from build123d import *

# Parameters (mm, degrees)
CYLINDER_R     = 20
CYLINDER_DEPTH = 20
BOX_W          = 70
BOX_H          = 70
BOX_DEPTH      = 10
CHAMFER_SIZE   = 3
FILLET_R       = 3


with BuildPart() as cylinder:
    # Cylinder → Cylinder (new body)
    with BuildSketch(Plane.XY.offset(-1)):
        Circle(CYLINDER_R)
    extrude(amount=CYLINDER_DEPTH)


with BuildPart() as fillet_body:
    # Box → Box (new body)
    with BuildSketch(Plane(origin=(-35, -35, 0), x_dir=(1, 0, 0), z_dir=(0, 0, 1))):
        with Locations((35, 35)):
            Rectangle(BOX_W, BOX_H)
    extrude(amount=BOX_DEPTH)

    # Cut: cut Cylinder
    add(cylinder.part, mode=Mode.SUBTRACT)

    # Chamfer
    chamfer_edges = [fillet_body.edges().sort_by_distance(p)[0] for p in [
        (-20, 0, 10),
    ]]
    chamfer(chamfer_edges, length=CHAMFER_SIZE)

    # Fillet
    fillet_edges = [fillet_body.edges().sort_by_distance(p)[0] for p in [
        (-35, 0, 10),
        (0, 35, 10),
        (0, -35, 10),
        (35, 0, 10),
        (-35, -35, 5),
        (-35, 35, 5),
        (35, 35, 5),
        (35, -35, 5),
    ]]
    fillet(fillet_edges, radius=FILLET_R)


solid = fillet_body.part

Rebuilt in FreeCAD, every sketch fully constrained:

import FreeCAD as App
import Part
import Sketcher

V = App.Vector
Q = App.Units.Quantity


def edges_at(feature, points):
    """Names of the edges that pass closest to the given points."""
    edges = feature.Shape.Edges
    near = lambda p: min(range(len(edges)), key=lambda i: edges[i].distToShape(Part.Vertex(*p))[0])
    return sorted({f"Edge{near(p) + 1}" for p in points})

doc = App.newDocument("Part")
params = doc.addObject("Spreadsheet::Sheet", "Params")
for row, (alias, value) in enumerate([
    ("sketch1_diameter", "40 mm"),
    ("pad1_length", "20 mm"),
    ("sketch2_width", "70 mm"),
    ("pad2_length", "10 mm"),
    ("chamfer_size", "3 mm"),
    ("fillet_radius", "3 mm"),
], start=1):
    params.set(f"A{row}", alias)
    params.set(f"B{row}", "=" + value)
    params.setAlias(f"B{row}", alias)

body = doc.addObject("PartDesign::Body", "Body")

sketch1 = body.newObject("Sketcher::SketchObject", "Sketch")
sketch1.AttachmentSupport = (doc.getObject("XY_Plane"), [""])
sketch1.MapMode = "FlatFace"
sketch1.AttachmentOffset = App.Placement(V(0, 0, -1), App.Rotation())
sketch1.addGeometry(Part.Circle(V(0, 0, 0), V(0, 0, 1), 20), False)
sketch1.addConstraint([
    Sketcher.Constraint("Coincident", 0, 3, -1, 1),
    Sketcher.Constraint("Diameter", 0, Q("40 mm")),
])
sketch1.setExpression("Constraints[1]", "Params.sketch1_diameter")
pad1 = body.newObject("PartDesign::Pad", "Pad")
pad1.Profile = sketch1
pad1.setExpression("Length", "Params.pad1_length")
body2 = doc.addObject("PartDesign::Body", "Body001")

sketch2 = body2.newObject("Sketcher::SketchObject", "Sketch001")
sketch2.AttachmentSupport = (doc.getObject("XY_Plane001"), [""])
sketch2.MapMode = "FlatFace"
sketch2.addGeometry([
    Part.LineSegment(V(-35, 35, 0), V(-35, -35, 0)),
    Part.LineSegment(V(-35, -35, 0), V(35, -35, 0)),
    Part.LineSegment(V(35, -35, 0), V(35, 35, 0)),
    Part.LineSegment(V(35, 35, 0), V(-35, 35, 0)),
], False)
sketch2.addConstraint([
    Sketcher.Constraint("Coincident", 0, 2, 1, 1),
    Sketcher.Constraint("Coincident", 1, 2, 2, 1),
    Sketcher.Constraint("Coincident", 2, 2, 3, 1),
    Sketcher.Constraint("Coincident", 3, 2, 0, 1),
    Sketcher.Constraint("Vertical", 0),
    Sketcher.Constraint("Horizontal", 1),
    Sketcher.Constraint("Vertical", 2),
    Sketcher.Constraint("Horizontal", 3),
    Sketcher.Constraint("Symmetric", 0, 2, 2, 2, -1, 1),
    Sketcher.Constraint("Equal", 3, 0),
    Sketcher.Constraint("DistanceX", 1, 1, 1, 2, Q("70 mm")),
])
sketch2.setExpression("Constraints[10]", "Params.sketch2_width")
pad2 = body2.newObject("PartDesign::Pad", "Pad001")
pad2.Profile = sketch2
pad2.setExpression("Length", "Params.pad2_length")
doc.recompute()

boolean = body2.newObject("PartDesign::Boolean", "Boolean")
boolean.Type = "Cut"
boolean.addObjects([body])
doc.recompute()

chamfer = body2.newObject("PartDesign::Chamfer", "Chamfer")
chamfer.Base = (boolean, edges_at(boolean, [(-20, 0, 10)]))
chamfer.setExpression("Size", "Params.chamfer_size")
doc.recompute()

fillet = body2.newObject("PartDesign::Fillet", "Fillet")
fillet.Base = (chamfer, edges_at(chamfer, [
    (-35, 0, 10),
    (0, 35, 10),
    (0, -35, 10),
    (35, 0, 10),
    (-35, -35, 5),
    (-35, 35, 5),
    (35, 35, 5),
    (35, -35, 5),
]))
fillet.setExpression("Radius", "Params.fillet_radius")

doc.recompute()
